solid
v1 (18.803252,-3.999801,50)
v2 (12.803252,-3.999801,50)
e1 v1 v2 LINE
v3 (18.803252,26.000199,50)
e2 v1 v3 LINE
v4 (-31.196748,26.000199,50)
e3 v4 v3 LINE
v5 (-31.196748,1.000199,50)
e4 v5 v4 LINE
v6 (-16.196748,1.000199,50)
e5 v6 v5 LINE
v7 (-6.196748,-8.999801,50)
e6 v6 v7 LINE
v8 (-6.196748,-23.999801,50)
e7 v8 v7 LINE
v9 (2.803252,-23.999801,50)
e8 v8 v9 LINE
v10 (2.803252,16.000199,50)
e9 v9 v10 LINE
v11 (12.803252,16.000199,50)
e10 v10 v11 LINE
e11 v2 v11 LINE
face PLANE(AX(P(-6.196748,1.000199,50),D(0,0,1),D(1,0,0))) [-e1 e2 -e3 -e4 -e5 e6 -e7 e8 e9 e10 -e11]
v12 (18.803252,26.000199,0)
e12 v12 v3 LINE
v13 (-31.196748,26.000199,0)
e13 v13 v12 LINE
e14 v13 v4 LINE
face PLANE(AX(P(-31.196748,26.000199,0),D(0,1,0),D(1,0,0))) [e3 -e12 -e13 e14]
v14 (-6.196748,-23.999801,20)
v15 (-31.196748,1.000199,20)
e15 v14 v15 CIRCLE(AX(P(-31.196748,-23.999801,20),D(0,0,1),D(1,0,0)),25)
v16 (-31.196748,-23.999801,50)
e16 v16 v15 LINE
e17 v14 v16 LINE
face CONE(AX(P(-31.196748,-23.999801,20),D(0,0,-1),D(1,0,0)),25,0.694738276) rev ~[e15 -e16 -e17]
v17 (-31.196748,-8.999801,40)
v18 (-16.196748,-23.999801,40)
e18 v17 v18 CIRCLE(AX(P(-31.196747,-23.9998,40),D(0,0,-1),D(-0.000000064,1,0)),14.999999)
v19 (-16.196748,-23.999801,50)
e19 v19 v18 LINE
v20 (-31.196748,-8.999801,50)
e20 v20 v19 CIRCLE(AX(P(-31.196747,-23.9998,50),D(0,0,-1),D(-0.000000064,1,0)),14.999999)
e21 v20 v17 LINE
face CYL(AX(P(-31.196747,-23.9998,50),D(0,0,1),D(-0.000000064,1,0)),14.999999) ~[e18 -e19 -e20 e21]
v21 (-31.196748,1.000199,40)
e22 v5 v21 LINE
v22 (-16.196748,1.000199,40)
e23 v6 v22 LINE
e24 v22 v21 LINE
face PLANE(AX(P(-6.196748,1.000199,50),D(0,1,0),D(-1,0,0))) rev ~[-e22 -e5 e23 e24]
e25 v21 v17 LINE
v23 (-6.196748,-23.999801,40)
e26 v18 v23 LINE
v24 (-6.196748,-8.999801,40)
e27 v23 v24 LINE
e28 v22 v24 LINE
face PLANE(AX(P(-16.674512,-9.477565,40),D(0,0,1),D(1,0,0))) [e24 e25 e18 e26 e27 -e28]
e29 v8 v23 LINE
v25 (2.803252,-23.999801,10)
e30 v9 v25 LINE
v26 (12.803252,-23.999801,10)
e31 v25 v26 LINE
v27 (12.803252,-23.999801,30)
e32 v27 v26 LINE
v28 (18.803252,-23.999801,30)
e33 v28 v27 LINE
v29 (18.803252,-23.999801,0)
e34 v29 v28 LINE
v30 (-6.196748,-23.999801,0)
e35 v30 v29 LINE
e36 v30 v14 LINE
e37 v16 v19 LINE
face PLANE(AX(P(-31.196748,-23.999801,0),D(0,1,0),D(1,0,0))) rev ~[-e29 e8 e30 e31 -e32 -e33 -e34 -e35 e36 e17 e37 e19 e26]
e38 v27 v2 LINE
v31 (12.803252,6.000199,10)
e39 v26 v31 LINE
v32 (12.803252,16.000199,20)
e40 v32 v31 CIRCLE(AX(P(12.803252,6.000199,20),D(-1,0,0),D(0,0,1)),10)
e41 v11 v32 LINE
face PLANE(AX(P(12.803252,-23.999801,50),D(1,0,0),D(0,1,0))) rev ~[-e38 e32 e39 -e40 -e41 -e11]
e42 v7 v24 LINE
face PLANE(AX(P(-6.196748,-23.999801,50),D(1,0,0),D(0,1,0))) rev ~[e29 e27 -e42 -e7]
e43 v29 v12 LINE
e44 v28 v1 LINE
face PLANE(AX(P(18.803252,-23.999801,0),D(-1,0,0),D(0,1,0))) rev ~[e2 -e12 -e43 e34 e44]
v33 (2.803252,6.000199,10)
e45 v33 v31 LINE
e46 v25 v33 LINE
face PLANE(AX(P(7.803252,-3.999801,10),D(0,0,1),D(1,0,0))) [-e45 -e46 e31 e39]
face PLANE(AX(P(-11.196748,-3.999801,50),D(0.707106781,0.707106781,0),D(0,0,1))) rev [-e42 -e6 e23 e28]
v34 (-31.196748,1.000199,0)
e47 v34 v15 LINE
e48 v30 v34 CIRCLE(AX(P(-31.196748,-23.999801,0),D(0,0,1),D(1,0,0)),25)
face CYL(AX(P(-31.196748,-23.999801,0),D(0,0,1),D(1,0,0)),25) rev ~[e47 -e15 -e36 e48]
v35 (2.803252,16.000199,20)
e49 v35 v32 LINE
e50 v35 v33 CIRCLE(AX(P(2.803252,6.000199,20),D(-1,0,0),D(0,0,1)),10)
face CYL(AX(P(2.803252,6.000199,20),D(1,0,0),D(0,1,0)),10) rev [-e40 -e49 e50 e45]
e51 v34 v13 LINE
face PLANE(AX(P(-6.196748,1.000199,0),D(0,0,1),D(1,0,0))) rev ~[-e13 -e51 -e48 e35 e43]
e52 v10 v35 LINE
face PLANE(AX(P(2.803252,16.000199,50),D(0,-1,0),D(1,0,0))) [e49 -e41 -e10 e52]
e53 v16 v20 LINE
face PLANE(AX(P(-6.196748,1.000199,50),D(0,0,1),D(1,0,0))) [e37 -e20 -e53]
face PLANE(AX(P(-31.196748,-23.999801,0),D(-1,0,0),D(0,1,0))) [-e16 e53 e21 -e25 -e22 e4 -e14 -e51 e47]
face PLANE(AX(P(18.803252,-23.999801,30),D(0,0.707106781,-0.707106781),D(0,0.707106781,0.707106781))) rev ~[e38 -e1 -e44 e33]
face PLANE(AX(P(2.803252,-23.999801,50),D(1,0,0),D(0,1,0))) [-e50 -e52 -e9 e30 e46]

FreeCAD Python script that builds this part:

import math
import FreeCAD as App
import Part
import Sketcher


def edges_at(feature, points):
    """Names of the edges that pass closest to the given points."""
    edges = feature.Shape.Edges
    near = lambda p: min(range(len(edges)), key=lambda i: edges[i].distToShape(Part.Vertex(*p))[0])
    return sorted({f"Edge{near(p) + 1}" for p in points})


def add_polygon(sketch, points):
    """Adds a closed chain of lines whose ends are joined by coincident constraints."""
    first, n = sketch.GeometryCount, len(points)
    for a, b in zip(points, points[1:] + points[:1]):
        sketch.addGeometry(Part.LineSegment(App.Vector(*a, 0), App.Vector(*b, 0)), False)
    for i in range(n):
        sketch.addConstraint(Sketcher.Constraint("Coincident", first + i, 2, first + (i + 1) % n, 1))

doc = App.newDocument("Part")
params = doc.addObject("Spreadsheet::Sheet", "Params")
for row, (alias, value) in enumerate([
    ("sketch1_width", "50 mm"),
    ("pad1_length", "50 mm"),
    ("sketch2_radius", "14.999999 mm"),
    ("sketch2_width", "10 mm"),
    ("pocket1_length", "10 mm"),
    ("chamfer_size", "10 mm"),
    ("sketch3_width", "10 mm"),
    ("sketch3_height", "40 mm"),
    ("pocket2_length", "40 mm"),
    ("fillet_radius", "10 mm"),
    ("sketch4_width", "20 mm"),
    ("pocket3_length", "6 mm"),
    ("sketch5_width", "25 mm"),
    ("sketch5_height", "50 mm"),
    ("sketch5_height2", "20 mm"),
    ("groove_angle", "360 deg"),
], start=1):
    params.set(f"A{row}", alias)
    params.set(f"B{row}", "=" + value)
    params.setAlias(f"B{row}", alias)

body = doc.addObject("PartDesign::Body", "Body")

sketch1 = body.newObject("Sketcher::SketchObject", "Sketch")
sketch1.AttachmentSupport = (doc.getObject("XY_Plane"), [""])
sketch1.MapMode = "FlatFace"
add_polygon(sketch1, [(-31, 26), (-31, -24), (19, -24), (19, 26)])
sketch1.addConstraint([
    Sketcher.Constraint("Vertical", 0),
    Sketcher.Constraint("Horizontal", 1),
    Sketcher.Constraint("Vertical", 2),
    Sketcher.Constraint("Horizontal", 3),
    Sketcher.Constraint("Equal", 3, 0),
    Sketcher.Constraint("DistanceX", 1, 1, 1, 2, 50.0),
    Sketcher.Constraint("DistanceY", 0, 2, -1, 1, 23.999801),
    Sketcher.Constraint("DistanceX", 0, 2, -1, 1, 31.196748),
])
sketch1.setExpression("Constraints[9]", "Params.sketch1_width")
pad1 = body.newObject("PartDesign::Pad", "Pad")
pad1.Profile = sketch1
pad1.setExpression("Length", "Params.pad1_length")

sketch2 = body.newObject("Sketcher::SketchObject", "Sketch001")
sketch2.AttachmentSupport = (doc.getObject("XY_Plane"), [""])
sketch2.MapMode = "FlatFace"
sketch2.AttachmentOffset = App.Placement(App.Vector(0, 0, 50), App.Rotation())
sketch2.addGeometry([
    Part.ArcOfCircle(Part.Circle(App.Vector(-31, -24, 0), App.Vector(0, 0, 1), 15), math.radians(0), math.radians(90)),
    Part.LineSegment(App.Vector(-16, -24, 0), App.Vector(-6, -24, 0)),
    Part.LineSegment(App.Vector(-6, -24, 0), App.Vector(-6, 1, 0)),
    Part.LineSegment(App.Vector(-6, 1, 0), App.Vector(-31, 1, 0)),
    Part.LineSegment(App.Vector(-31, 1, 0), App.Vector(-31, -9, 0)),
], False)
sketch2.addConstraint([
    Sketcher.Constraint("Coincident", 0, 1, 1, 1),
    Sketcher.Constraint("Coincident", 1, 2, 2, 1),
    Sketcher.Constraint("Coincident", 2, 2, 3, 1),
    Sketcher.Constraint("Coincident", 3, 2, 4, 1),
    Sketcher.Constraint("Coincident", 4, 2, 0, 2),
    Sketcher.Constraint("Horizontal", 1),
    Sketcher.Constraint("Vertical", 2),
    Sketcher.Constraint("Horizontal", 3),
    Sketcher.Constraint("Vertical", 4),
    Sketcher.Constraint("Vertical", 0, 3, 3, 2),
    Sketcher.Constraint("Equal", 3, 2),
    Sketcher.Constraint("Equal", 1, 4),
    Sketcher.Constraint("Radius", 0, 14.999999),
    Sketcher.Constraint("DistanceX", 1, 1, 1, 2, 10.0),
    Sketcher.Constraint("DistanceY", 0, 3, -1, 1, 23.9998),
    Sketcher.Constraint("DistanceX", 0, 1, -1, 1, 16.196748),
])
sketch2.setExpression("Constraints[12]", "Params.sketch2_radius")
sketch2.setExpression("Constraints[13]", "Params.sketch2_width")
pocket1 = body.newObject("PartDesign::Pocket", "Pocket")
pocket1.Profile = sketch2
pocket1.setExpression("Length", "Params.pocket1_length")
doc.recompute()

chamfer = body.newObject("PartDesign::Chamfer", "Chamfer")
chamfer.Base = (pocket1, edges_at(pocket1, [(-6.197, 1, 45)]))
chamfer.setExpression("Size", "Params.chamfer_size")

sketch3 = body.newObject("Sketcher::SketchObject", "Sketch002")
sketch3.AttachmentSupport = (doc.getObject("XY_Plane"), [""])
sketch3.MapMode = "FlatFace"
sketch3.AttachmentOffset = App.Placement(App.Vector(0, 0, 50), App.Rotation())
add_polygon(sketch3, [(3, 16), (3, -24), (13, -24), (13, 16)])
sketch3.addConstraint([
    Sketcher.Constraint("Vertical", 0),
    Sketcher.Constraint("Horizontal", 1),
    Sketcher.Constraint("Vertical", 2),
    Sketcher.Constraint("Horizontal", 3),
    Sketcher.Constraint("DistanceX", 1, 1, 1, 2, 10.0),
    Sketcher.Constraint("DistanceY", 0, 2, 0, 1, 40.0),
    Sketcher.Constraint("DistanceY", 0, 2, -1, 1, 23.999801),
    Sketcher.Constraint("DistanceX", -1, 1, 0, 2, 2.803252),
])
sketch3.setExpression("Constraints[8]", "Params.sketch3_width")
sketch3.setExpression("Constraints[9]", "Params.sketch3_height")
pocket2 = body.newObject("PartDesign::Pocket", "Pocket001")
pocket2.Profile = sketch3
pocket2.setExpression("Length", "Params.pocket2_length")
doc.recompute()

fillet = body.newObject("PartDesign::Fillet", "Fillet")
fillet.Base = (pocket2, edges_at(pocket2, [(7.803, 16, 10)]))
fillet.setExpression("Radius", "Params.fillet_radius")

sketch4 = body.newObject("Sketcher::SketchObject", "Sketch003")
sketch4.AttachmentSupport = (doc.getObject("YZ_Plane"), [""])
sketch4.MapMode = "FlatFace"
sketch4.AttachmentOffset = App.Placement(App.Vector(0, 0, 18.803252), App.Rotation())
add_polygon(sketch4, [(-4, 50), (-24, 50), (-24, 30)])
sketch4.addConstraint([
    Sketcher.Constraint("Horizontal", 0),
    Sketcher.Constraint("Vertical", 1),
    Sketcher.Constraint("Equal", 0, 1),
    Sketcher.Constraint("DistanceX", 0, 2, 0, 1, 20.0),
    Sketcher.Constraint("DistanceY", -1, 1, 0, 2, 50.0),
    Sketcher.Constraint("DistanceX", 0, 2, -1, 1, 23.999801),
])
sketch4.setExpression("Constraints[6]", "Params.sketch4_width")
pocket3 = body.newObject("PartDesign::Pocket", "Pocket002")
pocket3.Profile = sketch4
pocket3.setExpression("Length", "Params.pocket3_length")

sketch5 = body.newObject("Sketcher::SketchObject", "Sketch004")
sketch5.AttachmentSupport = (doc.getObject("XZ_Plane"), [""])
sketch5.MapMode = "FlatFace"
sketch5.AttachmentOffset = App.Placement(App.Vector(0, 0, 23.999801), App.Rotation())
add_polygon(sketch5, [(-6, 20), (-31, 50), (-31, 0), (-6, 0)])
sketch5.addGeometry(Part.LineSegment(App.Vector(-31, 0, 0), App.Vector(-31, 50, 0)), True)
sketch5.addConstraint([
    Sketcher.Constraint("Vertical", 1),
    Sketcher.Constraint("Horizontal", 2),
    Sketcher.Constraint("Vertical", 3),
    Sketcher.Constraint("Vertical", 4),
    Sketcher.Constraint("Coincident", 4, 1, 1, 2),
    Sketcher.Constraint("PointOnObject", 1, 2, -1),
    Sketcher.Constraint("Equal", 1, 4),
    Sketcher.Constraint("DistanceX", 2, 1, 2, 2, 25.0),
    Sketcher.Constraint("DistanceY", 1, 2, 1, 1, 50.0),
    Sketcher.Constraint("DistanceY", 3, 1, 3, 2, 20.0),
    Sketcher.Constraint("DistanceX", 2, 2, -1, 1, 6.196748),
])
sketch5.setExpression("Constraints[11]", "Params.sketch5_width")
sketch5.setExpression("Constraints[12]", "Params.sketch5_height")
sketch5.setExpression("Constraints[13]", "Params.sketch5_height2")
groove = body.newObject("PartDesign::Groove", "Groove")
groove.Profile = sketch5
groove.ReferenceAxis = (sketch5, ["Axis0"])
groove.setExpression("Angle", "Params.groove_angle")

doc.recompute()
